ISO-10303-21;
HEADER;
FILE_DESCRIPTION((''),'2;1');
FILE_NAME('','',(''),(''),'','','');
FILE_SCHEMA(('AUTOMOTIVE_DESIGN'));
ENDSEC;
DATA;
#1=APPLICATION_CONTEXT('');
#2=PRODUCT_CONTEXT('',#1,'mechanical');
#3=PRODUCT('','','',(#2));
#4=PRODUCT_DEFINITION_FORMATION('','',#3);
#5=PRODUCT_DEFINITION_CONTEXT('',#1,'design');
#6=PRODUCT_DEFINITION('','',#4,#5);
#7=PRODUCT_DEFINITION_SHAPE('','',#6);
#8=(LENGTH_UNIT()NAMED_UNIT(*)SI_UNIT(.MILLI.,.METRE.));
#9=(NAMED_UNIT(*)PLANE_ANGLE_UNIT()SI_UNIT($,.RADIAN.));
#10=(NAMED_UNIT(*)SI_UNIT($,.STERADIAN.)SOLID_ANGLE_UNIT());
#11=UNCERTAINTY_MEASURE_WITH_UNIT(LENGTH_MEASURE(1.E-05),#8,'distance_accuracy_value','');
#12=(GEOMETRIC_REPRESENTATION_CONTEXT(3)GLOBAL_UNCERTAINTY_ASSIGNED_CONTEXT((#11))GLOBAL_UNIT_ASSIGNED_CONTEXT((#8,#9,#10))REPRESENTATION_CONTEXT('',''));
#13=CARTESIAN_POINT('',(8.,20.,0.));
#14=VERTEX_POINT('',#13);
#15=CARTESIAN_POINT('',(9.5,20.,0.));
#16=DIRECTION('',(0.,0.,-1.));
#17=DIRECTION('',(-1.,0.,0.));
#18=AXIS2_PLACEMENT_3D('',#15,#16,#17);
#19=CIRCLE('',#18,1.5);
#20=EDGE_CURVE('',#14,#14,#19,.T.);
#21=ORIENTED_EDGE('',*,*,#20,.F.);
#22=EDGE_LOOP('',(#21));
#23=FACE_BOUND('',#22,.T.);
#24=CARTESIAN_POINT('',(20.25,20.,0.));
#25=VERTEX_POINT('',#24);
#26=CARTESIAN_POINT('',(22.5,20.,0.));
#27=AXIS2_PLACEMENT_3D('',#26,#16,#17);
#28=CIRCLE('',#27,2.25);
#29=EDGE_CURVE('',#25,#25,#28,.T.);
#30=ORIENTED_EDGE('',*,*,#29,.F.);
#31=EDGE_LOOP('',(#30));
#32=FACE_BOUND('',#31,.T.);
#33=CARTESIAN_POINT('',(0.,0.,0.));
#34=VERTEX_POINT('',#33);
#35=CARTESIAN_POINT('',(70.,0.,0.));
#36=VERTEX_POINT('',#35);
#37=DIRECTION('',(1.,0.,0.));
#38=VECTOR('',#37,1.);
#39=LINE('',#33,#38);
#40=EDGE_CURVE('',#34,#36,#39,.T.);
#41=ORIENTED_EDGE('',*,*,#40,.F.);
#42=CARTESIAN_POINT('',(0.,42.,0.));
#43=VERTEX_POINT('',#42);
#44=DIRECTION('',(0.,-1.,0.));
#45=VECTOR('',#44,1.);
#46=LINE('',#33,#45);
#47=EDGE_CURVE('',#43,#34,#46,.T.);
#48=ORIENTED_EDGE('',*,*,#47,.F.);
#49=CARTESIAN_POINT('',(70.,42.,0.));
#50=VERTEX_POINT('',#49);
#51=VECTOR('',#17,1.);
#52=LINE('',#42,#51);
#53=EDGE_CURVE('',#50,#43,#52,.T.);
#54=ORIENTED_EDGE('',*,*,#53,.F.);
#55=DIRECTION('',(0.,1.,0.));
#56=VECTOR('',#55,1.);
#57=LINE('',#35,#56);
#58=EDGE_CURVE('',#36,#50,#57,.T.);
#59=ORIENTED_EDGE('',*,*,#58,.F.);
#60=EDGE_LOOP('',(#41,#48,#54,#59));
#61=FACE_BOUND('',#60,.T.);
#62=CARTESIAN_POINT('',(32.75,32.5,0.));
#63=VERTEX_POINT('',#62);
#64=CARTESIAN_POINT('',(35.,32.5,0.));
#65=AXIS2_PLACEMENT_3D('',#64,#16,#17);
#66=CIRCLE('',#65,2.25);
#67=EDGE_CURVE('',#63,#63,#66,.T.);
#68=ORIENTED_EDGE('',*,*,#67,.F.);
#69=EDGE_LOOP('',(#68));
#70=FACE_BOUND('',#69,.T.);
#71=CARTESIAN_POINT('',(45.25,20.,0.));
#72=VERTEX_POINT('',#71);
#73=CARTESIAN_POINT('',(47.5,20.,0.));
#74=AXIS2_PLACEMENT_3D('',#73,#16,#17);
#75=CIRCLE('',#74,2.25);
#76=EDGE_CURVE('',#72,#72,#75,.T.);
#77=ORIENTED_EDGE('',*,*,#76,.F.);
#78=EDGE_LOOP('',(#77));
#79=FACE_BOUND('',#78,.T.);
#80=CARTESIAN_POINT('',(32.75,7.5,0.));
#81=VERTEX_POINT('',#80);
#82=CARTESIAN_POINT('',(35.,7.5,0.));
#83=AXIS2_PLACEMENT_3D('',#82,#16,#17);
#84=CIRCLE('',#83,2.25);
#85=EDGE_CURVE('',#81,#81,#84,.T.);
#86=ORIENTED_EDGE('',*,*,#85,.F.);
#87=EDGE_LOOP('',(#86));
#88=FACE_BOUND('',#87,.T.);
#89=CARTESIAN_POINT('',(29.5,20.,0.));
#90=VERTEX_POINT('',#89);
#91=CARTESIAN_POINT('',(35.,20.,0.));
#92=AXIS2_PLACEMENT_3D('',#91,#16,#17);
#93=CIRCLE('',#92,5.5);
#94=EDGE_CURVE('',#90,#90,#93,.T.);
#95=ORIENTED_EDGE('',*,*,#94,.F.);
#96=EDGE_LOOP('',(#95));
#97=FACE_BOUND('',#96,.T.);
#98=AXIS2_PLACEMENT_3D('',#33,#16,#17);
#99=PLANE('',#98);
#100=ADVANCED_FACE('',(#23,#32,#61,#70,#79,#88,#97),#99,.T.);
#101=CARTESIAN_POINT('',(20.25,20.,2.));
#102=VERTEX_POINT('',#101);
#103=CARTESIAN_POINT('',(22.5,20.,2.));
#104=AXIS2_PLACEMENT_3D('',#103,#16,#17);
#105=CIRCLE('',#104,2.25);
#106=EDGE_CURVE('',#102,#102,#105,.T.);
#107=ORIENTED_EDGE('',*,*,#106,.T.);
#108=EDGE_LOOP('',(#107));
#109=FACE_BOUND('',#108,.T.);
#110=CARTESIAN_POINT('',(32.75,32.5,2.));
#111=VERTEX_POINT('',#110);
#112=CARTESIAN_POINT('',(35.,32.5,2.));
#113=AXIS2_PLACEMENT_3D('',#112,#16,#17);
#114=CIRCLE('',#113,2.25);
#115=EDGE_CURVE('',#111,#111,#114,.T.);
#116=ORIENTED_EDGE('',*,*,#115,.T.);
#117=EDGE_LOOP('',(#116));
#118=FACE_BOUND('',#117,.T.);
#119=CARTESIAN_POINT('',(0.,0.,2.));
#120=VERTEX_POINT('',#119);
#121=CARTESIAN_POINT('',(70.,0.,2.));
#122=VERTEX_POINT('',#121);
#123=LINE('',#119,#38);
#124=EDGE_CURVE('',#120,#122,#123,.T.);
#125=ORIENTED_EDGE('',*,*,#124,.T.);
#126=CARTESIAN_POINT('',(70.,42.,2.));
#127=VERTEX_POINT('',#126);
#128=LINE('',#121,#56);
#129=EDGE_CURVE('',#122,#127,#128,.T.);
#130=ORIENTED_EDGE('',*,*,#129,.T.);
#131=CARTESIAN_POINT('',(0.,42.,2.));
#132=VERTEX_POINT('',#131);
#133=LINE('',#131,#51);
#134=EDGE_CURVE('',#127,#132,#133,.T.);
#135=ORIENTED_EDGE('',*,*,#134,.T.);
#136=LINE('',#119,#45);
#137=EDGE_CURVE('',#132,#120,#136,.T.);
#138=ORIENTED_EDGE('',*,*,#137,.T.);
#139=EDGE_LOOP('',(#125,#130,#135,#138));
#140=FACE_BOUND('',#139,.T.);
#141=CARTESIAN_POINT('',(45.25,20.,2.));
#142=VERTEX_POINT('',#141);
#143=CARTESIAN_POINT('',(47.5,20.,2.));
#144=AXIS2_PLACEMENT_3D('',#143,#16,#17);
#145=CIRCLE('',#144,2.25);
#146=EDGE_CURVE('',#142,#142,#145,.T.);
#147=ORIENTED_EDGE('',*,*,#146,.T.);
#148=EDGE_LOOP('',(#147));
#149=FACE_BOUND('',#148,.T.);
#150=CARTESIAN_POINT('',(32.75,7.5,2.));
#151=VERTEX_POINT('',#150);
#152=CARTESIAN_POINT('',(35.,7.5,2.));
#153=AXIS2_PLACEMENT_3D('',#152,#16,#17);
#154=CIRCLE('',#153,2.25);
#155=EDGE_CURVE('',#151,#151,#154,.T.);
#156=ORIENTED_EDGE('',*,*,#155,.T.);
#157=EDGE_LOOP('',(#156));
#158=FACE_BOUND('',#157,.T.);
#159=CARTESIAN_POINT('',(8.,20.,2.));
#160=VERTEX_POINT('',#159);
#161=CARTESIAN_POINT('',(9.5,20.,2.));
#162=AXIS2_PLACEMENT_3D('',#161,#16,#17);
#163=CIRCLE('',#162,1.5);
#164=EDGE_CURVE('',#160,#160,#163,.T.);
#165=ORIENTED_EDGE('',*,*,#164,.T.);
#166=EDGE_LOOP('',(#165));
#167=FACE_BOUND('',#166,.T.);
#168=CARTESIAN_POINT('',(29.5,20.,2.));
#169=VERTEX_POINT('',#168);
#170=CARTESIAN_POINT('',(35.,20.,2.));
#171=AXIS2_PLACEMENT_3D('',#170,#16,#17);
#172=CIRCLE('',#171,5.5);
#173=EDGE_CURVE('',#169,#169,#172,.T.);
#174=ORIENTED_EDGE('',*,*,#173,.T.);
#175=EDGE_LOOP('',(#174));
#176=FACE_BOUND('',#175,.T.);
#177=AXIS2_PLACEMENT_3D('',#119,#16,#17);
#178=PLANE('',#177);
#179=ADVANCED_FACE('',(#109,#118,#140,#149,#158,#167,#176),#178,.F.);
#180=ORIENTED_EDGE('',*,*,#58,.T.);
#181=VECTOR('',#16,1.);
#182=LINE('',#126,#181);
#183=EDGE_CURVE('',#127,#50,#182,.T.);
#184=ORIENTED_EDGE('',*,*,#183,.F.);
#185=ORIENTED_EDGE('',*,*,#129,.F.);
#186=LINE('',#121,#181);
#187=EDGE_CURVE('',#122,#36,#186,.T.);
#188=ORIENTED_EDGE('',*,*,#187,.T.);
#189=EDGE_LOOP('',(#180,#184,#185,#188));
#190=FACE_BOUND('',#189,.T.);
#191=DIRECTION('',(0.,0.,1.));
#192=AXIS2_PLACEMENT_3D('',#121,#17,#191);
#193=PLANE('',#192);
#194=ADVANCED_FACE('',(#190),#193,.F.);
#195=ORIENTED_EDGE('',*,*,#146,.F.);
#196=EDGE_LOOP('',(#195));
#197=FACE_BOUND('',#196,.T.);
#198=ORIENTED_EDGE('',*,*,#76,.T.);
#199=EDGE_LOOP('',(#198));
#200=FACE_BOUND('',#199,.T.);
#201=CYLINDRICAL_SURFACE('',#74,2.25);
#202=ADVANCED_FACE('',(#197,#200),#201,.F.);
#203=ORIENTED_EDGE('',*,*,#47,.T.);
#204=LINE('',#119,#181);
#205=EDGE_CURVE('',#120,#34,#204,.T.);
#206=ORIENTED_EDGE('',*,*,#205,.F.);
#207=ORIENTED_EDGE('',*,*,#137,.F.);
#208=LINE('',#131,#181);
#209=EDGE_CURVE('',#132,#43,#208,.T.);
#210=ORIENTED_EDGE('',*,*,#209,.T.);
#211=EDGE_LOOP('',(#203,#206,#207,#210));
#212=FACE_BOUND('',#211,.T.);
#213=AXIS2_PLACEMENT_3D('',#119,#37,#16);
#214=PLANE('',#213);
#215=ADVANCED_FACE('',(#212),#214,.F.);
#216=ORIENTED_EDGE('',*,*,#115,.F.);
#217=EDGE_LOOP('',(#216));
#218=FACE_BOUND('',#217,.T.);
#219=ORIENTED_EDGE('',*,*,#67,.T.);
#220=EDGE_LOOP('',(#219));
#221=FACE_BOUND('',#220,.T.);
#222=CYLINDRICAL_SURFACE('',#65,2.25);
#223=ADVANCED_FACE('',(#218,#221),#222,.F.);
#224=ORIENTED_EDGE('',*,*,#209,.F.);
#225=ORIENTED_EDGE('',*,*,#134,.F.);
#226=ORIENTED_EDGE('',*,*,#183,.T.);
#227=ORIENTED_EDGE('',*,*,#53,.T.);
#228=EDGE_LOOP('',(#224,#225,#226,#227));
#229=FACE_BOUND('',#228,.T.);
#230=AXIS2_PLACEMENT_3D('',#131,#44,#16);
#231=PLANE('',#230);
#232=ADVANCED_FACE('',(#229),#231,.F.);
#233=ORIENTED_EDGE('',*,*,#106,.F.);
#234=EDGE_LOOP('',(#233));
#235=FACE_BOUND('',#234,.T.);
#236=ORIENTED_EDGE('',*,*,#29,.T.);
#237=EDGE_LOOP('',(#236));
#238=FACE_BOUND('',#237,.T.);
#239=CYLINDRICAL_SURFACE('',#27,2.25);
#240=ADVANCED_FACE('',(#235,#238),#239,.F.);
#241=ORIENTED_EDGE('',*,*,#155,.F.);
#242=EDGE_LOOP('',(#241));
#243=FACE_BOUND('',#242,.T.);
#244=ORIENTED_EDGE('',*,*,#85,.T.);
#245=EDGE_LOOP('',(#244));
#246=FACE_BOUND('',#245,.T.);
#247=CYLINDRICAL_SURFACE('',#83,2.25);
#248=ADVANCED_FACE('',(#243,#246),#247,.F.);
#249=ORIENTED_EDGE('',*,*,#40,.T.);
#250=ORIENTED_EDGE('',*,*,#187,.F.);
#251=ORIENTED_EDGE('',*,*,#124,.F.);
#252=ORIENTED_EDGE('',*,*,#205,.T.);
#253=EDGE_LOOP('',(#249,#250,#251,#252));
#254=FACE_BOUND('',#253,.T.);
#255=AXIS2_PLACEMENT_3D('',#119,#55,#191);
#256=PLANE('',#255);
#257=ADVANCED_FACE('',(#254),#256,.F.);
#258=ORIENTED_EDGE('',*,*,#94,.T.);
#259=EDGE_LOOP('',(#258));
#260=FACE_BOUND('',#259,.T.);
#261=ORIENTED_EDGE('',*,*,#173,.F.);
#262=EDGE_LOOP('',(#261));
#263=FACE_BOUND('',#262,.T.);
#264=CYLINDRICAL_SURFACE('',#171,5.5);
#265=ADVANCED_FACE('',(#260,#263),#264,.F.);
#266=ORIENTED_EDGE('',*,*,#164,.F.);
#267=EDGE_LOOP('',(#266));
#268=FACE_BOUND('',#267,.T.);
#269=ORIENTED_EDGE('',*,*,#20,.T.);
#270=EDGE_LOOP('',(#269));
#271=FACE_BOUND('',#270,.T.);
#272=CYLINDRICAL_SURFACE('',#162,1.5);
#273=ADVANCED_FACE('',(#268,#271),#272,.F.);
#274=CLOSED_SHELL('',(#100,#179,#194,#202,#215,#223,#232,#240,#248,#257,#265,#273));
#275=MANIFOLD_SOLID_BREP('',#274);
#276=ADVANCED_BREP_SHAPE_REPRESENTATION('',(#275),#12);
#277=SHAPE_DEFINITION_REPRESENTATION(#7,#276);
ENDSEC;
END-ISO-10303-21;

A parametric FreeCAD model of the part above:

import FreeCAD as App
import Part
import Sketcher

doc = App.newDocument("Part")
body = doc.addObject("PartDesign::Body", "Body")

# Sketch on XY plane
sketch1 = doc.addObject("Sketcher::SketchObject", "Sketch")
body.addObject(sketch1)
sketch1.AttachmentSupport = (doc.XY_Plane, [""])
sketch1.MapMode = "FlatFace"
sketch1.addGeometry([
    Part.LineSegment(App.Vector(0, 42, 0), App.Vector(0, 0, 0)),
    Part.LineSegment(App.Vector(0, 0, 0), App.Vector(70, 0, 0)),
    Part.LineSegment(App.Vector(70, 0, 0), App.Vector(70, 42, 0)),
    Part.LineSegment(App.Vector(70, 42, 0), App.Vector(0, 42, 0)),
], False)
sketch1.addConstraint([
    Sketcher.Constraint("Coincident", 0, 2, 1, 1),
    Sketcher.Constraint("Coincident", 1, 2, 2, 1),
    Sketcher.Constraint("Coincident", 2, 2, 3, 1),
    Sketcher.Constraint("Coincident", 3, 2, 0, 1),
    Sketcher.Constraint("Vertical", 0),
    Sketcher.Constraint("Horizontal", 1),
    Sketcher.Constraint("Vertical", 2),
    Sketcher.Constraint("Horizontal", 3),
    Sketcher.Constraint("Coincident", 0, 2, -1, 1),
    Sketcher.Constraint("DistanceX", 1, 1, 1, 2, 70.0),
    Sketcher.Constraint("DistanceY", 0, 2, 0, 1, 42.0),
])
pad1 = doc.addObject("PartDesign::Pad", "Pad")
body.addObject(pad1)
pad1.Profile = sketch1
pad1.Length = 2

# Sketch on XY plane
sketch2 = doc.addObject("Sketcher::SketchObject", "Sketch001")
body.addObject(sketch2)
sketch2.AttachmentSupport = (doc.XY_Plane, [""])
sketch2.MapMode = "FlatFace"
sketch2.addGeometry([
    Part.Circle(App.Vector(35, 32.5, 0), App.Vector(0, 0, 1), 2.2),
    Part.Circle(App.Vector(47.5, 20, 0), App.Vector(0, 0, 1), 2.2),
    Part.Circle(App.Vector(35, 7.5, 0), App.Vector(0, 0, 1), 2.2),
    Part.Circle(App.Vector(22.5, 20, 0), App.Vector(0, 0, 1), 2.2),
], False)
sketch2.addConstraint([
    Sketcher.Constraint("Equal", 0, 1),
    Sketcher.Constraint("Equal", 1, 2),
    Sketcher.Constraint("Equal", 2, 3),
    Sketcher.Constraint("Horizontal", 1, 3, 3, 3),
    Sketcher.Constraint("Vertical", 0, 3, 2, 3),
    Sketcher.Constraint("Diameter", 0, 4.5),
    Sketcher.Constraint("DistanceX", -1, 1, 0, 3, 35.0),
    Sketcher.Constraint("DistanceY", -1, 1, 1, 3, 20.0),
    Sketcher.Constraint("DistanceY", 2, 3, 0, 3, 25.0),
    Sketcher.Constraint("DistanceX", 3, 3, 1, 3, 25.0),
    Sketcher.Constraint("DistanceY", -1, 1, 0, 3, 32.5),
    Sketcher.Constraint("DistanceX", -1, 1, 1, 3, 47.5),
])
doc.recompute()
hole = doc.addObject("PartDesign::Hole", "Hole")
body.addObject(hole)
hole.Profile = sketch2
hole.ThreadType = "None"
hole.Diameter = 4.5
hole.DepthType = "ThroughAll"
hole.Reversed = True

# Sketch on XY plane
sketch3 = doc.addObject("Sketcher::SketchObject", "Sketch002")
body.addObject(sketch3)
sketch3.AttachmentSupport = (doc.XY_Plane, [""])
sketch3.MapMode = "FlatFace"
sketch3.addGeometry(Part.Circle(App.Vector(35, 20, 0), App.Vector(0, 0, 1), 6), False)
sketch3.addConstraint([
    Sketcher.Constraint("Diameter", 0, 11.0),
    Sketcher.Constraint("DistanceX", -1, 1, 0, 3, 35.0),
    Sketcher.Constraint("DistanceY", -1, 1, 0, 3, 20.0),
])
pocket1 = doc.addObject("PartDesign::Pocket", "Pocket")
body.addObject(pocket1)
pocket1.Profile = sketch3
pocket1.Type = "ThroughAll"
pocket1.Reversed = True

# Sketch on XY plane
sketch4 = doc.addObject("Sketcher::SketchObject", "Sketch003")
body.addObject(sketch4)
sketch4.AttachmentSupport = (doc.XY_Plane, [""])
sketch4.MapMode = "FlatFace"
sketch4.addGeometry(Part.Circle(App.Vector(9.5, 20, 0), App.Vector(0, 0, 1), 1.5), False)
sketch4.addConstraint([
    Sketcher.Constraint("Diameter", 0, 3.0),
    Sketcher.Constraint("DistanceY", -1, 1, 0, 3, 20.0),
    Sketcher.Constraint("DistanceX", -1, 1, 0, 3, 9.5),
])
pocket2 = doc.addObject("PartDesign::Pocket", "Pocket001")
body.addObject(pocket2)
pocket2.Profile = sketch4
pocket2.Type = "ThroughAll"
pocket2.Reversed = True

doc.recompute()
